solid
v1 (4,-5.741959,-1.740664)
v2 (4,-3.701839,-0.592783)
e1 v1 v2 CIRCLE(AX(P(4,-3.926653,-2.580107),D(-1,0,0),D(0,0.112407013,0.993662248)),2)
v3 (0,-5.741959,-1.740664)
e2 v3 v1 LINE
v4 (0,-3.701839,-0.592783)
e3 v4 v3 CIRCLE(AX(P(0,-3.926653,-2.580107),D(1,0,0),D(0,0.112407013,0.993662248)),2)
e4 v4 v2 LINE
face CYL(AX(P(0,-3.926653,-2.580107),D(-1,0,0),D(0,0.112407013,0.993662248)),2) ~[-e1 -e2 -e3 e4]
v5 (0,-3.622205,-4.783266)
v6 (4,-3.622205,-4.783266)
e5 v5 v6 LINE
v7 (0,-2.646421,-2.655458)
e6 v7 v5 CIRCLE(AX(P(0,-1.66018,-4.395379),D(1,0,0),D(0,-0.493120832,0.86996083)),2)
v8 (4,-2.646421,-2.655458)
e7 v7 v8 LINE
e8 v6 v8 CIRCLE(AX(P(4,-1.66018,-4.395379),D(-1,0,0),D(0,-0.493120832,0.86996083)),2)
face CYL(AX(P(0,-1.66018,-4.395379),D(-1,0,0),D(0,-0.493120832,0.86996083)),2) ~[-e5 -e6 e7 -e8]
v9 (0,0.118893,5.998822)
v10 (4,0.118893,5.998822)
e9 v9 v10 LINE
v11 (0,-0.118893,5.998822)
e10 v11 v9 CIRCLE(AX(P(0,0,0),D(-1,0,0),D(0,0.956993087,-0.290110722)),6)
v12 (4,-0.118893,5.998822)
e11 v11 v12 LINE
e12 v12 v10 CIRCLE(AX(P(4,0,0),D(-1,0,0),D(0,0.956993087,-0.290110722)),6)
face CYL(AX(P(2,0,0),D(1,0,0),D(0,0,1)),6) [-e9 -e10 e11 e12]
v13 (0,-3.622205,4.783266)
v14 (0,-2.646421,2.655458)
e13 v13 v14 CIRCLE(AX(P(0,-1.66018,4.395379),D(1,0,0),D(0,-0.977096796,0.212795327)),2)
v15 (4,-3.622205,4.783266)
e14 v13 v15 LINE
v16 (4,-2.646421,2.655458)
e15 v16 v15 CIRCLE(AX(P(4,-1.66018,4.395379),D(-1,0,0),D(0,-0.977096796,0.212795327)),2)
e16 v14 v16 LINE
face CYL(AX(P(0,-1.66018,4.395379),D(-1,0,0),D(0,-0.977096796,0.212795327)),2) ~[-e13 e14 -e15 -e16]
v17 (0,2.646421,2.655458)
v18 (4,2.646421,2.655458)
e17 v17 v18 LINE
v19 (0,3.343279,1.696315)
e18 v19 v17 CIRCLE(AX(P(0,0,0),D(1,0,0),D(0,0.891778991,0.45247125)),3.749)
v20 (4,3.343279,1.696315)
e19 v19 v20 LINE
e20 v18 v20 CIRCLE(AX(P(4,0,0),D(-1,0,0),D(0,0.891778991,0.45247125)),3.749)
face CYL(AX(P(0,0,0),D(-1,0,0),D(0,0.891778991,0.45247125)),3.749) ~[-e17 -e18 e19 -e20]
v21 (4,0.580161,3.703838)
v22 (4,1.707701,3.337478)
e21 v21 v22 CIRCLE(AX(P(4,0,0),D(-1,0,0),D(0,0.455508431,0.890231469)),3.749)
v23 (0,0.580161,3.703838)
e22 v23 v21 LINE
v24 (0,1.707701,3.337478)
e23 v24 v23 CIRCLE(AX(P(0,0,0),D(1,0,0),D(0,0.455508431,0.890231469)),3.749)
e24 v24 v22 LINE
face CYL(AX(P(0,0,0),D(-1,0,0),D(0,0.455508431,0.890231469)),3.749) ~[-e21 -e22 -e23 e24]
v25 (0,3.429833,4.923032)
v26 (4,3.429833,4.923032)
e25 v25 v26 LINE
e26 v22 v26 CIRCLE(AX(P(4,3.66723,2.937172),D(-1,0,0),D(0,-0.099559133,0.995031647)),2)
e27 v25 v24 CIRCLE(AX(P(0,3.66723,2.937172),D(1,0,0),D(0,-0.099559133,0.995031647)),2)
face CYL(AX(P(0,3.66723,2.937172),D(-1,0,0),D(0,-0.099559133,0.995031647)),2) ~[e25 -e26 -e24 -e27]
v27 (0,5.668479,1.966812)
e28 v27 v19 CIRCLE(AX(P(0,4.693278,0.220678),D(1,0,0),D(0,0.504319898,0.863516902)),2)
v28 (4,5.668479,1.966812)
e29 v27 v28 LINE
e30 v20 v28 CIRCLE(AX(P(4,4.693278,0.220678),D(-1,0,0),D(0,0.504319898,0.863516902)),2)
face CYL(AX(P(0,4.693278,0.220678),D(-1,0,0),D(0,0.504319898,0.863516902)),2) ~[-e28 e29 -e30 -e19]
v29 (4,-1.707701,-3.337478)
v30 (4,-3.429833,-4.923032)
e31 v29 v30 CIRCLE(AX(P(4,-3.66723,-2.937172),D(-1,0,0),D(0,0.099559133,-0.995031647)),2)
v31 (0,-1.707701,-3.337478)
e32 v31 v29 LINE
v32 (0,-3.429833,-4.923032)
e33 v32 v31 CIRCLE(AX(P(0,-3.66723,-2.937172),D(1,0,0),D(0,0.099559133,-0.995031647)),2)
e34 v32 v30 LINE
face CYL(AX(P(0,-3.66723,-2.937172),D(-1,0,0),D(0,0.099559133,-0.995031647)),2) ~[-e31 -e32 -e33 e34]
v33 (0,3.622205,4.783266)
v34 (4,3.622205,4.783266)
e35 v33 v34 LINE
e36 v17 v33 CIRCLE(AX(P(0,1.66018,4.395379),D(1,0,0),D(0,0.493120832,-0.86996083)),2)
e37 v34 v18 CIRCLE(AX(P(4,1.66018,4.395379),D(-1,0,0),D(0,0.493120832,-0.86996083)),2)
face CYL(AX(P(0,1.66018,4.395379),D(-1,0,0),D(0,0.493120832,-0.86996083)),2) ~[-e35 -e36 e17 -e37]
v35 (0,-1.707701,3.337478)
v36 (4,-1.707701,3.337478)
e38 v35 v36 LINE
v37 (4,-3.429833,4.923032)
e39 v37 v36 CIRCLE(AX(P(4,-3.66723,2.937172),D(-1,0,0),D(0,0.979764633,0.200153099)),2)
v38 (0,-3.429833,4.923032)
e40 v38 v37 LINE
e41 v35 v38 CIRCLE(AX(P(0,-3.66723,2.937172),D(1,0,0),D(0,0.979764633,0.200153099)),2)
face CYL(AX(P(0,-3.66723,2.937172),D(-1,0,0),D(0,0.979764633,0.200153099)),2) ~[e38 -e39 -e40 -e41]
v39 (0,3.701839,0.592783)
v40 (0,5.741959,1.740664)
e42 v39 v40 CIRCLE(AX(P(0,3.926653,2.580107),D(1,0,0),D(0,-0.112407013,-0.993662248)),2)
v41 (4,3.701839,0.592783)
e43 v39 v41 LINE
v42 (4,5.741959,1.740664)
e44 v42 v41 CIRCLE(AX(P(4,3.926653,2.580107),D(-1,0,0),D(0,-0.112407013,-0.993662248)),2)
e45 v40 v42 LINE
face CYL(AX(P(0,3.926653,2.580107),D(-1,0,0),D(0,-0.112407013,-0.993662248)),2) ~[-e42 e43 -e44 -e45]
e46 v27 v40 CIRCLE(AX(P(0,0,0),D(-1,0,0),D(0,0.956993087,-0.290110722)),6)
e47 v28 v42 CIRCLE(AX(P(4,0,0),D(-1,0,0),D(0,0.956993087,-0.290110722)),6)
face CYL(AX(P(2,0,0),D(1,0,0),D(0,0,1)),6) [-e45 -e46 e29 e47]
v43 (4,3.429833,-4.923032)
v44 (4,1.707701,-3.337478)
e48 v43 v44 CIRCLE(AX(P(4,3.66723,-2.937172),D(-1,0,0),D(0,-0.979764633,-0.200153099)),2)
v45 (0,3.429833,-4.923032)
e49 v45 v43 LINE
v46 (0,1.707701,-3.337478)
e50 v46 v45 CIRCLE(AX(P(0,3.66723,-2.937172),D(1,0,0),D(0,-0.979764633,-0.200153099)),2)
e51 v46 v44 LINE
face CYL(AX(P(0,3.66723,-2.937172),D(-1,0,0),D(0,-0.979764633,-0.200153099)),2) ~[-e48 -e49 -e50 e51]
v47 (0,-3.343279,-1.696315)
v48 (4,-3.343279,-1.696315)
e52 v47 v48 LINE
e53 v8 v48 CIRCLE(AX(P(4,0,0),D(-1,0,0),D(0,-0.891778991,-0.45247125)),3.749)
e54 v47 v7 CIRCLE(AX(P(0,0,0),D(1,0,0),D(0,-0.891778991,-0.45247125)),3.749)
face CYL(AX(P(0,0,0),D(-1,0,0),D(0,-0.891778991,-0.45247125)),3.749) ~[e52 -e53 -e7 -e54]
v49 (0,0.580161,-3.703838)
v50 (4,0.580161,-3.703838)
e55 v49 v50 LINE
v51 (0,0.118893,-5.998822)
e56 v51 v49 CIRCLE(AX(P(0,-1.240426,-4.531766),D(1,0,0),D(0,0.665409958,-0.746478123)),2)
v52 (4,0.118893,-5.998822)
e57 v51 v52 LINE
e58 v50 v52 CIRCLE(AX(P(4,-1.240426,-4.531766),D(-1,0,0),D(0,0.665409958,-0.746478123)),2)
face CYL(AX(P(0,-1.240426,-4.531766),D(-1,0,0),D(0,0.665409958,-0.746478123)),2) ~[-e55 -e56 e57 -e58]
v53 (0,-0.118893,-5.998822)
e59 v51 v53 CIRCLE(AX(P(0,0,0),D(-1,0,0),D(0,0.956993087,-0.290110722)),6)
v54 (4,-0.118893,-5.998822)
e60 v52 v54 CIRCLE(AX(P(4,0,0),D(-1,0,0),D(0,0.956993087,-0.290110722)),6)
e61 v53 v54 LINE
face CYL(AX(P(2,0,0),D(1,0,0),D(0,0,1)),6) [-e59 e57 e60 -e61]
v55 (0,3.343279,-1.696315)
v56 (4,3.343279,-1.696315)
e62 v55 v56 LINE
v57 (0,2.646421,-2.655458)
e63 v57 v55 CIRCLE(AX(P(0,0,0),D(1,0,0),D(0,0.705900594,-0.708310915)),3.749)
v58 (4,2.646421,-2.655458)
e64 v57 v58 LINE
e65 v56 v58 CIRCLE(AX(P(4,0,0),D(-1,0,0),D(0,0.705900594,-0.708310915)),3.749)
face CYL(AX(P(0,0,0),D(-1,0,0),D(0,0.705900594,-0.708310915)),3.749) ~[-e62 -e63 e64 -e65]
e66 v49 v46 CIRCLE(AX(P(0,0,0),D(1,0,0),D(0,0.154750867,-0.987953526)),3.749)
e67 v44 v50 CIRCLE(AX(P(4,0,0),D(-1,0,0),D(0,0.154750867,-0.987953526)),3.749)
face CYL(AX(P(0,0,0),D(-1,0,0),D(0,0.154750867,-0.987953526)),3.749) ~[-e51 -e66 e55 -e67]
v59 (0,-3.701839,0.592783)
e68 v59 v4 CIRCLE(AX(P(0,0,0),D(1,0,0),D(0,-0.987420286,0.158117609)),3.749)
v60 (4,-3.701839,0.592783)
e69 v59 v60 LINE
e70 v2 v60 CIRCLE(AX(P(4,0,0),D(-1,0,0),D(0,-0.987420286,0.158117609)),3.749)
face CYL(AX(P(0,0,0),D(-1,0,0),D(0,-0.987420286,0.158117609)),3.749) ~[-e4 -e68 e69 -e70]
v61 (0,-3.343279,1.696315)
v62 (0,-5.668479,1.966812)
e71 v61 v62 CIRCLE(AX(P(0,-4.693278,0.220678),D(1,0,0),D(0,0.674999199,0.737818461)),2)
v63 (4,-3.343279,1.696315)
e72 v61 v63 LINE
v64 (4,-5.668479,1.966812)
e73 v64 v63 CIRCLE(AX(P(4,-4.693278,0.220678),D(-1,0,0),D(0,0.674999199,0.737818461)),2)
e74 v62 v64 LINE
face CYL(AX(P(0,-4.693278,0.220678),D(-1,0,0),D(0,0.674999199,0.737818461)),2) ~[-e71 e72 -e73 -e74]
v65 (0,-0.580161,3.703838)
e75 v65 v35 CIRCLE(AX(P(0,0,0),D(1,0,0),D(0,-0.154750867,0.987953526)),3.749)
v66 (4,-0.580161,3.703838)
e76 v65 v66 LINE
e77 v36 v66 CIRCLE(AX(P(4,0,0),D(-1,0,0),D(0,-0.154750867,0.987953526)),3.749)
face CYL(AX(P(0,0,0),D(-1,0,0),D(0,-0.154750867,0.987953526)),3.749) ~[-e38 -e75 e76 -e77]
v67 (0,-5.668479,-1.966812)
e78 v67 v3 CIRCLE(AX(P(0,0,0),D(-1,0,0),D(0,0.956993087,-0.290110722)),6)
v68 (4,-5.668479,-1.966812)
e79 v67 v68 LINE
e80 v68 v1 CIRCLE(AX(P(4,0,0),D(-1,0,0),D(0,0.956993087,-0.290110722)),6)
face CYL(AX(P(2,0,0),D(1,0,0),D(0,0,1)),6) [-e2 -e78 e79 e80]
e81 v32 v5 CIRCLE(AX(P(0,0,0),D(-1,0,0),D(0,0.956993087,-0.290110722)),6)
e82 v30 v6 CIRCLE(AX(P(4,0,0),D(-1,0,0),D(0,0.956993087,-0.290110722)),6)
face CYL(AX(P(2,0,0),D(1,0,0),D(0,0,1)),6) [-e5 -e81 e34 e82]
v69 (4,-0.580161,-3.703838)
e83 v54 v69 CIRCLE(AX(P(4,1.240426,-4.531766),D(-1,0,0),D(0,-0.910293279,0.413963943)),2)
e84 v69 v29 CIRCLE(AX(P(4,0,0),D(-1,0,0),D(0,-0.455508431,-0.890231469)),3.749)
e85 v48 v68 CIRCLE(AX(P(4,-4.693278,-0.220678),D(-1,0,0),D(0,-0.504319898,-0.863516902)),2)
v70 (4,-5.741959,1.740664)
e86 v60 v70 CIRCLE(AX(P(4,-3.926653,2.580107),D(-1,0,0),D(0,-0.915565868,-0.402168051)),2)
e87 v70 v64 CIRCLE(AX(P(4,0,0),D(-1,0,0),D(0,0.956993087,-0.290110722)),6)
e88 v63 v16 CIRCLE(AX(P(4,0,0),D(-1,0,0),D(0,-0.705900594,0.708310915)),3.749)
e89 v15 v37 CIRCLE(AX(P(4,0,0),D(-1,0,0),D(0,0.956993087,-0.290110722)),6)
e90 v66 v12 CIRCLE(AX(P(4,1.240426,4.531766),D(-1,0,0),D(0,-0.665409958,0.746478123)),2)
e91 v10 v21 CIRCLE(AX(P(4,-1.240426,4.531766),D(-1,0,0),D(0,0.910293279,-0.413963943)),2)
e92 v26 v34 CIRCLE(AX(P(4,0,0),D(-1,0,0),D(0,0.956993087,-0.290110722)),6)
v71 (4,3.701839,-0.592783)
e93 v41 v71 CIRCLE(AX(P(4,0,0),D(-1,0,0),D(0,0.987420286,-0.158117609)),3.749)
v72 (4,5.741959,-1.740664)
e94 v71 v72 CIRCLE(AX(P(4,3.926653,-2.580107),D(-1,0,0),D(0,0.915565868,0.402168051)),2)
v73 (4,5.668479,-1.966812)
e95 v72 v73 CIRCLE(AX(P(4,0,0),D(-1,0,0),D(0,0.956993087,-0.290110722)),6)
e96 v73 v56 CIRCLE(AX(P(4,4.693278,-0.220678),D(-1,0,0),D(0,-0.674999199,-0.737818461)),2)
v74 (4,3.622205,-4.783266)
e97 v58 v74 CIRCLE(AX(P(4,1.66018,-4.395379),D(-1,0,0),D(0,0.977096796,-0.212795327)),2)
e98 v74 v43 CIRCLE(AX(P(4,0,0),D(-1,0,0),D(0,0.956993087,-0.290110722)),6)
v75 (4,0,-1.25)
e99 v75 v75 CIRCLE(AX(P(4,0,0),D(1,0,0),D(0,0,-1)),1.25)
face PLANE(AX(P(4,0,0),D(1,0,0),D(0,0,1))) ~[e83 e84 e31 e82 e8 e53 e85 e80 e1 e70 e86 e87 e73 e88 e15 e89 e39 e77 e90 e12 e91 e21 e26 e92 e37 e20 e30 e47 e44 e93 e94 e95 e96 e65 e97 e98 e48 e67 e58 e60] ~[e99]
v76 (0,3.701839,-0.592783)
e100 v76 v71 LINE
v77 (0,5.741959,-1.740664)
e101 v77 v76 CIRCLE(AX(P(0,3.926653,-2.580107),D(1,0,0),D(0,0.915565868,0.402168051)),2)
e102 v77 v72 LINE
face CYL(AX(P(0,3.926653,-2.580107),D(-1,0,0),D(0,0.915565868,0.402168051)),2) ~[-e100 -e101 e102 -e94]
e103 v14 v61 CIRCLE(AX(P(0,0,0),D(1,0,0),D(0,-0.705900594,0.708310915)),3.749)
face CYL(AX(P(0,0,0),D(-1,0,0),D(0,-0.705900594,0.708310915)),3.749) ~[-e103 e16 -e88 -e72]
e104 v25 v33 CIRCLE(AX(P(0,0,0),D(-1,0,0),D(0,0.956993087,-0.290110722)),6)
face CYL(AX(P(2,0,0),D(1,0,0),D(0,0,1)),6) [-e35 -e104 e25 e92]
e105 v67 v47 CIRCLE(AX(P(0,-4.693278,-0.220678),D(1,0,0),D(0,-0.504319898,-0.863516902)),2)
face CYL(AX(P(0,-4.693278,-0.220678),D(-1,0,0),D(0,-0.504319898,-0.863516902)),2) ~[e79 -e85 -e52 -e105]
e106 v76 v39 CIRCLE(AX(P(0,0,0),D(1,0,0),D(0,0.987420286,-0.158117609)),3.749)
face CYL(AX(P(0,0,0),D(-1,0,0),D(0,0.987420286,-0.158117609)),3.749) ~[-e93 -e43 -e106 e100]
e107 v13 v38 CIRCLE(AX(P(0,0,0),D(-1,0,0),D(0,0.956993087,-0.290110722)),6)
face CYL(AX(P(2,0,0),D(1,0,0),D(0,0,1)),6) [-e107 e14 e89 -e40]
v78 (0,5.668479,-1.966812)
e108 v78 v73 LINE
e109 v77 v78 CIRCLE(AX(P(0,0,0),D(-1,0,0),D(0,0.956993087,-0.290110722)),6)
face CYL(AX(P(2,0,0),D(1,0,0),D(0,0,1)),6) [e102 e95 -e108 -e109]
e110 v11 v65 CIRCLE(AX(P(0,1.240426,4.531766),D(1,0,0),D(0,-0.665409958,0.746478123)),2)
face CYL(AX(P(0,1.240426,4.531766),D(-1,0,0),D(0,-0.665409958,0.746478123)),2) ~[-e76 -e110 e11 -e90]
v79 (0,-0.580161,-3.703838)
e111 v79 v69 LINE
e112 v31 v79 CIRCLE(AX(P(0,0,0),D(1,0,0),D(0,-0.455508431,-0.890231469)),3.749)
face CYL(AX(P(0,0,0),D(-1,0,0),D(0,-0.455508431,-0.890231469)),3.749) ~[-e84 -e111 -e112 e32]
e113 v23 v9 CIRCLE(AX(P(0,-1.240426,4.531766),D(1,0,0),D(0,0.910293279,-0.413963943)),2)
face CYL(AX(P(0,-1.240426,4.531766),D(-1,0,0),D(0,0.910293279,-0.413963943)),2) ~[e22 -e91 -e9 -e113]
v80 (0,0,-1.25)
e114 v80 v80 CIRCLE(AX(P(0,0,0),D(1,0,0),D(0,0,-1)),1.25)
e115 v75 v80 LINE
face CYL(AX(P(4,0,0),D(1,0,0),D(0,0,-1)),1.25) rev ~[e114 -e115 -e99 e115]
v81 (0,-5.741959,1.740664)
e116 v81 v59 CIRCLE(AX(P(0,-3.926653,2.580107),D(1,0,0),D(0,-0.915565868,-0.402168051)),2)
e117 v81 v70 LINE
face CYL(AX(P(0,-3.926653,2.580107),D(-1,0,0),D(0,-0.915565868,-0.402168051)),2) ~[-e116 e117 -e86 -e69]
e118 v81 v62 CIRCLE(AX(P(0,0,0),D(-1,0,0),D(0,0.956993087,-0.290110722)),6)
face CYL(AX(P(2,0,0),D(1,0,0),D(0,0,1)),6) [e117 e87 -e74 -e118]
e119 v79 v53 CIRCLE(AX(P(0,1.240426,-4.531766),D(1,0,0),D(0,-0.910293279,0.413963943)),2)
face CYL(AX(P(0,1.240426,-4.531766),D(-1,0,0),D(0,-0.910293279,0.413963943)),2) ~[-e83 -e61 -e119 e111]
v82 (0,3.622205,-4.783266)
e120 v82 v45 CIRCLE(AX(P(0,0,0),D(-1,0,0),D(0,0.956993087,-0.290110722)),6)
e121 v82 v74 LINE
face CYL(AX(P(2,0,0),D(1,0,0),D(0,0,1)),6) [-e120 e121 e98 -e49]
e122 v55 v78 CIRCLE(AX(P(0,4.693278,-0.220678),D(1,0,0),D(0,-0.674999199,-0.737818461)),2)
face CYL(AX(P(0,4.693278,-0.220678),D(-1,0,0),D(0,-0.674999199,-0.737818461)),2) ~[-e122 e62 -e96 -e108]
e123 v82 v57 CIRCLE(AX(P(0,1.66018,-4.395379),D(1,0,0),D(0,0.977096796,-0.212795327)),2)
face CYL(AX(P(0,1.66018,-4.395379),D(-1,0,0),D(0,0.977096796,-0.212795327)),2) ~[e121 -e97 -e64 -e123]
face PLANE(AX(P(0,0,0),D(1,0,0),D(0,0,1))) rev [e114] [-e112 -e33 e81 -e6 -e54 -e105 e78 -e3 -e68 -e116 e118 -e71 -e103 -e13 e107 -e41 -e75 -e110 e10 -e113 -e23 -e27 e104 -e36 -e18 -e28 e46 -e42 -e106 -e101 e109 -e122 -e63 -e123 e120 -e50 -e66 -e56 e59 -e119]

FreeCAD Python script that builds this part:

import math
import FreeCAD as App
import Part
import Sketcher


def add_polygon(sketch, points):
    """Adds a closed chain of lines whose ends are joined by coincident constraints."""
    first, n = sketch.GeometryCount, len(points)
    for a, b in zip(points, points[1:] + points[:1]):
        sketch.addGeometry(Part.LineSegment(App.Vector(*a, 0), App.Vector(*b, 0)), False)
    for i in range(n):
        sketch.addConstraint(Sketcher.Constraint("Coincident", first + i, 2, first + (i + 1) % n, 1))

doc = App.newDocument("Part")
body = doc.addObject("PartDesign::Body", "Body")

sketch1 = body.newObject("Sketcher::SketchObject", "Sketch")
sketch1.AttachmentSupport = (doc.getObject("XZ_Plane"), [""])
sketch1.MapMode = "FlatFace"
add_polygon(sketch1, [(0, -6), (0, 0), (4, 0), (4, -6)])
sketch1.addConstraint([
    Sketcher.Constraint("Vertical", 0),
    Sketcher.Constraint("Horizontal", 1),
    Sketcher.Constraint("Vertical", 2),
    Sketcher.Constraint("Horizontal", 3),
    Sketcher.Constraint("Coincident", 0, 2, -1, 1),
    Sketcher.Constraint("DistanceX", 1, 1, 1, 2, 4.0),
    Sketcher.Constraint("DistanceY", 0, 1, 0, 2, 6.0),
])
revolution = body.newObject("PartDesign::Revolution", "Revolution")
revolution.Profile = sketch1
revolution.ReferenceAxis = (sketch1, ["H_Axis"])
revolution.Angle = 360

sketch2 = body.newObject("Sketcher::SketchObject", "Sketch001")
sketch2.AttachmentSupport = (doc.getObject("YZ_Plane"), [""])
sketch2.MapMode = "FlatFace"
sketch2.addGeometry([
    Part.ArcOfCircle(Part.Circle(App.Vector(0, 0, 0), App.Vector(0, 0, 1), 3.7), math.radians(-9.1), math.radians(9.1)),
    Part.ArcOfCircle(Part.Circle(App.Vector(3.9, -2.6, 0), App.Vector(0, 0, 1), 2), math.radians(24), math.radians(96)),
    Part.ArcOfCircle(Part.Circle(App.Vector(0, 0, 0), App.Vector(0, 0, 1), 6), math.radians(-17), math.radians(17)),
    Part.ArcOfCircle(Part.Circle(App.Vector(3.9, 2.6, 0), App.Vector(0, 0, 1), 2), math.radians(-96), math.radians(-24)),
], False)
sketch2.addConstraint([
    Sketcher.Constraint("Coincident", 0, 1, 1, 2),
    Sketcher.Constraint("Coincident", 1, 1, 2, 1),
    Sketcher.Constraint("Coincident", 2, 2, 3, 2),
    Sketcher.Constraint("Coincident", 3, 1, 0, 2),
    Sketcher.Constraint("Coincident", 0, 3, -1, 1),
    Sketcher.Constraint("Coincident", 2, 3, -1, 1),
    Sketcher.Constraint("Equal", 1, 3),
    Sketcher.Constraint("Symmetric", 1, 3, 3, 3, -1),
    Sketcher.Constraint("Radius", 1, 2.0),
    Sketcher.Constraint("Radius", 0, 3.749),
    Sketcher.Constraint("Radius", 2, 6.0254),
    Sketcher.Constraint("DistanceX", -1, 1, 0, 1, 3.701839),
    Sketcher.Constraint("DistanceY", 1, 1, -1, 1, 1.775771),
])
pocket1 = body.newObject("PartDesign::Pocket", "Pocket")
pocket1.Profile = sketch2
pocket1.Type = "ThroughAll"
pocket1.Reversed = True
doc.recompute()

polarpattern = body.newObject("PartDesign::PolarPattern", "PolarPattern")
polarpattern.Originals = [pocket1]
polarpattern.Axis = (doc.getObject("X_Axis"), [""])
polarpattern.Angle = 360
polarpattern.Occurrences = 10
body.Tip = polarpattern

sketch3 = body.newObject("Sketcher::SketchObject", "Sketch002")
sketch3.AttachmentSupport = (doc.getObject("YZ_Plane"), [""])
sketch3.MapMode = "FlatFace"
sketch3.addGeometry(Part.Circle(App.Vector(0, 0, 0), App.Vector(0, 0, 1), 1), False)
sketch3.addConstraint([
    Sketcher.Constraint("Coincident", 0, 3, -1, 1),
    Sketcher.Constraint("Diameter", 0, 2.0),
])
pocket2 = body.newObject("PartDesign::Pocket", "Pocket001")
pocket2.Profile = sketch3
pocket2.Length = 100.000102
pocket2.Midplane = True

sketch4 = body.newObject("Sketcher::SketchObject", "Sketch003")
sketch4.AttachmentSupport = (doc.getObject("YZ_Plane"), [""])
sketch4.MapMode = "FlatFace"
sketch4.AttachmentOffset = App.Placement(App.Vector(0, 0, 4), App.Rotation())
sketch4.addGeometry(Part.Circle(App.Vector(0, 0, 0), App.Vector(0, 0, 1), 1.2), False)
sketch4.addConstraint([
    Sketcher.Constraint("Coincident", 0, 3, -1, 1),
    Sketcher.Constraint("Diameter", 0, 2.5),
])
pocket3 = body.newObject("PartDesign::Pocket", "Pocket002")
pocket3.Profile = sketch4
pocket3.Length = 10

doc.recompute()
